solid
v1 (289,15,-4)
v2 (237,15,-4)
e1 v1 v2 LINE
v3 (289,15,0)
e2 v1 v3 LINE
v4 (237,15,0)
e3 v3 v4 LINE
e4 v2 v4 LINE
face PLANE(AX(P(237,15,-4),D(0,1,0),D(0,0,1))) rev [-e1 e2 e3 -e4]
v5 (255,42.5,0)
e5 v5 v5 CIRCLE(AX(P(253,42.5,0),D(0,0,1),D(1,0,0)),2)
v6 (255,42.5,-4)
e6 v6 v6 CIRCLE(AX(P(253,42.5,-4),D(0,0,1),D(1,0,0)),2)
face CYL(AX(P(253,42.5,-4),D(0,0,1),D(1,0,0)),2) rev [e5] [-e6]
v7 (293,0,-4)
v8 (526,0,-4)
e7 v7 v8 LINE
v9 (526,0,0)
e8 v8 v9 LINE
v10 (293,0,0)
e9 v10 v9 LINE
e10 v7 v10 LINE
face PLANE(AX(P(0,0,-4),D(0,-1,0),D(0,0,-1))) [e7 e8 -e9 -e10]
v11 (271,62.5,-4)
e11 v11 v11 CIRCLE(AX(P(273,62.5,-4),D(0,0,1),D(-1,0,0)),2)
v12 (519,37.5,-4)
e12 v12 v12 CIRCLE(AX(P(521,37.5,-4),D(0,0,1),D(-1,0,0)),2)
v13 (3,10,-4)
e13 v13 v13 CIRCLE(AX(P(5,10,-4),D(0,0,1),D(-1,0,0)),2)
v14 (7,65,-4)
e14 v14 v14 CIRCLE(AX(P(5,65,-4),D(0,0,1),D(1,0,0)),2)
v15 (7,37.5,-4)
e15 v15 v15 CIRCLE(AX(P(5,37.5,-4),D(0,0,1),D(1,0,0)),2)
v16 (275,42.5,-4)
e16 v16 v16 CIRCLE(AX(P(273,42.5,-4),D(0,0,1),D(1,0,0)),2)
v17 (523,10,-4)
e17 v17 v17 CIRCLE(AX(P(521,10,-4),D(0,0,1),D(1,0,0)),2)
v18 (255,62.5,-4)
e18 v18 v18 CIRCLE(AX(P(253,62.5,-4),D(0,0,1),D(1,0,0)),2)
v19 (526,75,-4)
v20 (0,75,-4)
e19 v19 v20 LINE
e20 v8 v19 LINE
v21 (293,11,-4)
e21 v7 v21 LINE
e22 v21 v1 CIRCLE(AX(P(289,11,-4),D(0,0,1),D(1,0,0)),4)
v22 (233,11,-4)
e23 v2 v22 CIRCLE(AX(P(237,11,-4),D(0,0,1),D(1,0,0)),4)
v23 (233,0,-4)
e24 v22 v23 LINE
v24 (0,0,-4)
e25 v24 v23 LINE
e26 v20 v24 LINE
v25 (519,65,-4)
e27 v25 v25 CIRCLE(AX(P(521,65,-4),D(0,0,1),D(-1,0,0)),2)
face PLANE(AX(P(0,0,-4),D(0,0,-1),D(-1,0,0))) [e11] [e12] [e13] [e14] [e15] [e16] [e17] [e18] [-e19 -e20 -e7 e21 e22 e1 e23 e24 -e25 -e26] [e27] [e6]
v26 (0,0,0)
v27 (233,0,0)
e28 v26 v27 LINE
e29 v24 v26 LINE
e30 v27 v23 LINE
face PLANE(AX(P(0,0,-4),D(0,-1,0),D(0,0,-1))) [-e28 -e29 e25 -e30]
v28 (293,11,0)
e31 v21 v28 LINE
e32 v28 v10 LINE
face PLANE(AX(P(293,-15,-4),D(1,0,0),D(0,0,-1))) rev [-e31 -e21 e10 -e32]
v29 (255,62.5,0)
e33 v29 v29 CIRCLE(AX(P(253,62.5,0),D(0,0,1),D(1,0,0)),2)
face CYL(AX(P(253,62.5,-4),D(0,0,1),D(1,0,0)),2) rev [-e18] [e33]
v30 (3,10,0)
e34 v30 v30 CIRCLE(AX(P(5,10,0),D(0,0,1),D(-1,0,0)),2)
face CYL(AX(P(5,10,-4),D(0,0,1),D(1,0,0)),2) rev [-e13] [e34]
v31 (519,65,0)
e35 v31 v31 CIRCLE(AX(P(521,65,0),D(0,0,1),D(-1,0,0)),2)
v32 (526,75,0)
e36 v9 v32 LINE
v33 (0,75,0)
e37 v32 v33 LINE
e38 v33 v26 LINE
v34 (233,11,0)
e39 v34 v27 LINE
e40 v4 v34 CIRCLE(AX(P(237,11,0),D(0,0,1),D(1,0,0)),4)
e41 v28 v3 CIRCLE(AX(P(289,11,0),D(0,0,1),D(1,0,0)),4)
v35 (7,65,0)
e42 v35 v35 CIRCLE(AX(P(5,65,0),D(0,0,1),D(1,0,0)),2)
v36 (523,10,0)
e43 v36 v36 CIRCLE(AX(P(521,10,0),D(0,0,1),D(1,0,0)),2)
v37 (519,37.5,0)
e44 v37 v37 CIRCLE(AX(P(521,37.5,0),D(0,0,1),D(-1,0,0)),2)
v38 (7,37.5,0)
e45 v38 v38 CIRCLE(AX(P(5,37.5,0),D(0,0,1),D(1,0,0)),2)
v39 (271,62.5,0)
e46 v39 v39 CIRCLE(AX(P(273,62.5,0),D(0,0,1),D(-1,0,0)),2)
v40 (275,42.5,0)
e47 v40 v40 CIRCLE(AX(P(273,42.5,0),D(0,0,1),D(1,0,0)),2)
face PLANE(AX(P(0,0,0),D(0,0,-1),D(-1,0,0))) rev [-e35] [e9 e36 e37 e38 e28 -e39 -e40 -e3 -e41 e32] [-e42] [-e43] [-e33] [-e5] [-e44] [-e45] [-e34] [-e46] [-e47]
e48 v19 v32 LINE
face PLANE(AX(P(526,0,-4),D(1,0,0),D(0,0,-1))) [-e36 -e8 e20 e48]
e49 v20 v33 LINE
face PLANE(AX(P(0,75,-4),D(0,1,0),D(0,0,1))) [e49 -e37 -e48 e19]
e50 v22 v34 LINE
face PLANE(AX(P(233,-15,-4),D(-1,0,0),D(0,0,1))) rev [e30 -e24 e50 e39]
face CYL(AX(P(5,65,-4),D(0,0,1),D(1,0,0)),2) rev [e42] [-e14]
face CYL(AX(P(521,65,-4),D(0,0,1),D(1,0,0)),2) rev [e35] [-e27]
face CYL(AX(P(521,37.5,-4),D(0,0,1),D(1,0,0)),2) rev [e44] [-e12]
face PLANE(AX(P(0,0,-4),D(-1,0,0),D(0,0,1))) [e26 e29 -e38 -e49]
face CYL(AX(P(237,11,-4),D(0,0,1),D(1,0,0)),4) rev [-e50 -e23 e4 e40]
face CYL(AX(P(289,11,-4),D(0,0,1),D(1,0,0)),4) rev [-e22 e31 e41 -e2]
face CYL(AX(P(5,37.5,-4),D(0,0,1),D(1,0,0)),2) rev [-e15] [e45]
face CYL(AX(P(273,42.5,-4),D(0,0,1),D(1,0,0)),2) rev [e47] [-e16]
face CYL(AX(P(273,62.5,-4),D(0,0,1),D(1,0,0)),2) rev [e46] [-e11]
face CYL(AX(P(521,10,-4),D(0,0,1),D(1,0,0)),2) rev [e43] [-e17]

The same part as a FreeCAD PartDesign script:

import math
import FreeCAD as App
import Part
import Sketcher

doc = App.newDocument("Part")
body = doc.addObject("PartDesign::Body", "Body")

sketch1 = doc.addObject("Sketcher::SketchObject", "Sketch")
body.addObject(sketch1)
sketch1.AttachmentSupport = (doc.XY_Plane, [""])
sketch1.MapMode = "FlatFace"
sketch1.addGeometry(Part.LineSegment(App.Vector(0, 75, 0), App.Vector(0, 0, 0)), False)
sketch1.addGeometry(Part.LineSegment(App.Vector(0, 0, 0), App.Vector(526, 0, 0)), False)
sketch1.addGeometry(Part.LineSegment(App.Vector(526, 0, 0), App.Vector(526, 75, 0)), False)
sketch1.addGeometry(Part.LineSegment(App.Vector(526, 75, 0), App.Vector(0, 75, 0)), False)
sketch1.addGeometry(Part.Circle(App.Vector(5, 10, 0), App.Vector(0, 0, 1), 2), False)
sketch1.addGeometry(Part.Circle(App.Vector(521, 10, 0), App.Vector(0, 0, 1), 2), False)
sketch1.addGeometry(Part.Circle(App.Vector(5, 37.5, 0), App.Vector(0, 0, 1), 2), False)
sketch1.addGeometry(Part.Circle(App.Vector(5, 65, 0), App.Vector(0, 0, 1), 2), False)
sketch1.addGeometry(Part.Circle(App.Vector(521, 37.5, 0), App.Vector(0, 0, 1), 2), False)
sketch1.addGeometry(Part.Circle(App.Vector(521, 65, 0), App.Vector(0, 0, 1), 2), False)
sketch1.addConstraint(Sketcher.Constraint("Coincident", 0, 2, 1, 1))
sketch1.addConstraint(Sketcher.Constraint("Coincident", 1, 2, 2, 1))
sketch1.addConstraint(Sketcher.Constraint("Coincident", 2, 2, 3, 1))
sketch1.addConstraint(Sketcher.Constraint("Coincident", 3, 2, 0, 1))
sketch1.addConstraint(Sketcher.Constraint("Vertical", 0))
sketch1.addConstraint(Sketcher.Constraint("Horizontal", 1))
sketch1.addConstraint(Sketcher.Constraint("Vertical", 2))
sketch1.addConstraint(Sketcher.Constraint("Horizontal", 3))
sketch1.addConstraint(Sketcher.Constraint("Coincident", 0, 2, -1, 1))
sketch1.addConstraint(Sketcher.Constraint("Equal", 4, 5))
sketch1.addConstraint(Sketcher.Constraint("Equal", 5, 6))
sketch1.addConstraint(Sketcher.Constraint("Equal", 6, 7))
sketch1.addConstraint(Sketcher.Constraint("Equal", 7, 8))
sketch1.addConstraint(Sketcher.Constraint("Equal", 8, 9))
sketch1.addConstraint(Sketcher.Constraint("Horizontal", 4, 3, 5, 3))
sketch1.addConstraint(Sketcher.Constraint("Horizontal", 6, 3, 8, 3))
sketch1.addConstraint(Sketcher.Constraint("Horizontal", 7, 3, 9, 3))
sketch1.addConstraint(Sketcher.Constraint("Vertical", 4, 3, 6, 3))
sketch1.addConstraint(Sketcher.Constraint("Vertical", 6, 3, 7, 3))
sketch1.addConstraint(Sketcher.Constraint("Vertical", 5, 3, 8, 3))
sketch1.addConstraint(Sketcher.Constraint("Vertical", 8, 3, 9, 3))
sketch1.addConstraint(Sketcher.Constraint("Diameter", 4, 4.0))
sketch1.addConstraint(Sketcher.Constraint("DistanceX", 1, 1, 1, 2, 526.0))
sketch1.addConstraint(Sketcher.Constraint("DistanceY", 0, 2, 0, 1, 75.0))
sketch1.addConstraint(Sketcher.Constraint("DistanceX", -1, 1, 4, 3, 5.0))
sketch1.addConstraint(Sketcher.Constraint("DistanceY", -1, 1, 4, 3, 10.0))
sketch1.addConstraint(Sketcher.Constraint("DistanceX", -1, 1, 5, 3, 521.0))
sketch1.addConstraint(Sketcher.Constraint("DistanceY", -1, 1, 7, 3, 65.0))
sketch1.addConstraint(Sketcher.Constraint("DistanceY", -1, 1, 6, 3, 37.5))
pad1 = doc.addObject("PartDesign::Pad", "Pad")
body.addObject(pad1)
pad1.Profile = sketch1
pad1.Length = 4
pad1.Reversed = True

sketch2 = doc.addObject("Sketcher::SketchObject", "Sketch001")
body.addObject(sketch2)
sketch2.AttachmentSupport = (doc.XY_Plane, [""])
sketch2.MapMode = "FlatFace"
sketch2.addGeometry(Part.Circle(App.Vector(253, 62.5, 0), App.Vector(0, 0, 1), 2), False)
sketch2.addGeometry(Part.Circle(App.Vector(273, 62.5, 0), App.Vector(0, 0, 1), 2), False)
sketch2.addGeometry(Part.Circle(App.Vector(253, 42.5, 0), App.Vector(0, 0, 1), 2), False)
sketch2.addGeometry(Part.Circle(App.Vector(273, 42.5, 0), App.Vector(0, 0, 1), 2), False)
sketch2.addGeometry(Part.LineSegment(App.Vector(293, -15, 0), App.Vector(293, 11, 0)), False)
sketch2.addGeometry(Part.ArcOfCircle(Part.Circle(App.Vector(289, 11, 0), App.Vector(0, 0, 1), 4), math.radians(0), math.radians(90)), False)
sketch2.addGeometry(Part.LineSegment(App.Vector(289, 15, 0), App.Vector(237, 15, 0)), False)
sketch2.addGeometry(Part.ArcOfCircle(Part.Circle(App.Vector(237, 11, 0), App.Vector(0, 0, 1), 4), math.radians(90), math.radians(180)), False)
sketch2.addGeometry(Part.LineSegment(App.Vector(233, 11, 0), App.Vector(233, -15, 0)), False)
sketch2.addGeometry(Part.LineSegment(App.Vector(233, -15, 0), App.Vector(293, -15, 0)), False)
sketch2.addConstraint(Sketcher.Constraint("Tangent", 4, 2, 5, 1))
sketch2.addConstraint(Sketcher.Constraint("Tangent", 5, 2, 6, 1))
sketch2.addConstraint(Sketcher.Constraint("Tangent", 6, 2, 7, 1))
sketch2.addConstraint(Sketcher.Constraint("Tangent", 7, 2, 8, 1))
sketch2.addConstraint(Sketcher.Constraint("Coincident", 8, 2, 9, 1))
sketch2.addConstraint(Sketcher.Constraint("Coincident", 9, 2, 4, 1))
sketch2.addConstraint(Sketcher.Constraint("Vertical", 4))
sketch2.addConstraint(Sketcher.Constraint("Horizontal", 6))
sketch2.addConstraint(Sketcher.Constraint("Vertical", 8))
sketch2.addConstraint(Sketcher.Constraint("Horizontal", 9))
sketch2.addConstraint(Sketcher.Constraint("Equal", 0, 1))
sketch2.addConstraint(Sketcher.Constraint("Equal", 1, 2))
sketch2.addConstraint(Sketcher.Constraint("Equal", 2, 3))
sketch2.addConstraint(Sketcher.Constraint("Equal", 5, 7))
sketch2.addConstraint(Sketcher.Constraint("Horizontal", 0, 3, 1, 3))
sketch2.addConstraint(Sketcher.Constraint("Horizontal", 2, 3, 3, 3))
sketch2.addConstraint(Sketcher.Constraint("Vertical", 0, 3, 2, 3))
sketch2.addConstraint(Sketcher.Constraint("Vertical", 1, 3, 3, 3))
sketch2.addConstraint(Sketcher.Constraint("Diameter", 0, 4.0))
sketch2.addConstraint(Sketcher.Constraint("Radius", 5, 4.0))
sketch2.addConstraint(Sketcher.Constraint("DistanceX", 6, 2, 6, 1, 52.0))
sketch2.addConstraint(Sketcher.Constraint("DistanceY", 4, 1, 4, 2, 26.0))
sketch2.addConstraint(Sketcher.Constraint("DistanceX", -1, 1, 0, 3, 253.0))
sketch2.addConstraint(Sketcher.Constraint("DistanceX", -1, 1, 1, 3, 273.0))
sketch2.addConstraint(Sketcher.Constraint("DistanceX", -1, 1, 5, 3, 289.0))
sketch2.addConstraint(Sketcher.Constraint("DistanceY", -1, 1, 5, 3, 11.0))
sketch2.addConstraint(Sketcher.Constraint("DistanceY", 2, 3, 0, 3, 20.0))
sketch2.addConstraint(Sketcher.Constraint("DistanceY", -1, 1, 0, 3, 62.5))
pocket1 = doc.addObject("PartDesign::Pocket", "Pocket")
body.addObject(pocket1)
pocket1.Profile = sketch2
pocket1.Length = 4

doc.recompute()
